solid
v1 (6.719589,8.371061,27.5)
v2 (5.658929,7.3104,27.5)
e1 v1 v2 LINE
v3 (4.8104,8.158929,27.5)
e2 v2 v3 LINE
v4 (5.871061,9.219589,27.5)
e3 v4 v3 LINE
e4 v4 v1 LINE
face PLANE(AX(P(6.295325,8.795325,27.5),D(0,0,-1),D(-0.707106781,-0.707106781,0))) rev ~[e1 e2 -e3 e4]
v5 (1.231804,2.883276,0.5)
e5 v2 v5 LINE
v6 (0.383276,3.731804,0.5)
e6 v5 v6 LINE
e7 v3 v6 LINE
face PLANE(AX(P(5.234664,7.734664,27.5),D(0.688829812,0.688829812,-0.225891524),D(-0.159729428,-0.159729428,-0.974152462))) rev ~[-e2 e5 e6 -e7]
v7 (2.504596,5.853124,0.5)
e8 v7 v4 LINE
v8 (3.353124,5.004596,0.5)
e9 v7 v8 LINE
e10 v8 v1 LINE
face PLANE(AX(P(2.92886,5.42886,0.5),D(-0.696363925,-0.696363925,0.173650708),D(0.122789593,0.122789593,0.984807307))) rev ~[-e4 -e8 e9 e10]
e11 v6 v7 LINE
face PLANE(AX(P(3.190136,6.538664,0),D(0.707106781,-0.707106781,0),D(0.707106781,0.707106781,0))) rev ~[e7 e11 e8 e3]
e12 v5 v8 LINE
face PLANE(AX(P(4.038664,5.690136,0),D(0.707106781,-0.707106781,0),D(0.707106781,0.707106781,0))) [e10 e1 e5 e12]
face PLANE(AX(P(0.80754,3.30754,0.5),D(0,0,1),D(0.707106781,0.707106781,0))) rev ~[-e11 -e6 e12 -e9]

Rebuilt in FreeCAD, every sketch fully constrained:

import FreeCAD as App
import Part
import Sketcher

V = App.Vector
Q = App.Units.Quantity


def add_polygon(sketch, points):
    """Adds a closed chain of lines whose ends are joined by coincident constraints."""
    first, n = sketch.GeometryCount, len(points)
    for a, b in zip(points, points[1:] + points[:1]):
        sketch.addGeometry(Part.LineSegment(App.Vector(*a, 0), App.Vector(*b, 0)), False)
    for i in range(n):
        sketch.addConstraint(Sketcher.Constraint("Coincident", first + i, 2, first + (i + 1) % n, 1))

doc = App.newDocument("Part")
params = doc.addObject("Spreadsheet::Sheet", "Params")
for row, (alias, value) in enumerate([
    ("sketch1_width", "3 mm"),
    ("sketch1_width2", "1.5 mm"),
    ("pad1_length", "1.2 mm"),
], start=1):
    params.set(f"A{row}", alias)
    params.set(f"B{row}", "=" + value)
    params.setAlias(f"B{row}", alias)

body = doc.addObject("PartDesign::Body", "Body")

# Sketch on an angled plane
sketch1 = body.newObject("Sketcher::SketchObject", "Sketch")
sketch1.Placement = App.Placement(V(3.6144, 6.1144, 0), App.Rotation(V(0.707106781, 0.707106781, 0), V(0, 0, 0.999999999), V(0.707106781, -0.707106781, 0), "ZXY"))
add_polygon(sketch1, [(-4, 0.5), (-1, 0.5), (3.8, 27.5), (2.3, 27.5)])  # lines 0-3
sketch1.addConstraint([
    Sketcher.Constraint("Horizontal", 0),
    Sketcher.Constraint("Horizontal", 2),
    Sketcher.Constraint("DistanceX", 0, 1, 0, 2, Q("3 mm")),
    Sketcher.Constraint("Angle", 1, Q("79.9999 deg")),
    Sketcher.Constraint("DistanceX", 2, 2, 2, 1, Q("1.5 mm")),
    Sketcher.Constraint("DistanceY", 0, 2, 1, 2, Q("27 mm")),
    Sketcher.Constraint("DistanceY", -1, 1, 0, 2, Q("0.5 mm")),
    Sketcher.Constraint("DistanceX", 0, 2, -1, 1, Q("0.9695 mm")),
])
sketch1.setExpression("Constraints[6]", "Params.sketch1_width")
sketch1.setExpression("Constraints[8]", "Params.sketch1_width2")
pad1 = body.newObject("PartDesign::Pad", "Pad")
pad1.Profile = sketch1
pad1.setExpression("Length", "Params.pad1_length")
pad1.Midplane = True

doc.recompute()
